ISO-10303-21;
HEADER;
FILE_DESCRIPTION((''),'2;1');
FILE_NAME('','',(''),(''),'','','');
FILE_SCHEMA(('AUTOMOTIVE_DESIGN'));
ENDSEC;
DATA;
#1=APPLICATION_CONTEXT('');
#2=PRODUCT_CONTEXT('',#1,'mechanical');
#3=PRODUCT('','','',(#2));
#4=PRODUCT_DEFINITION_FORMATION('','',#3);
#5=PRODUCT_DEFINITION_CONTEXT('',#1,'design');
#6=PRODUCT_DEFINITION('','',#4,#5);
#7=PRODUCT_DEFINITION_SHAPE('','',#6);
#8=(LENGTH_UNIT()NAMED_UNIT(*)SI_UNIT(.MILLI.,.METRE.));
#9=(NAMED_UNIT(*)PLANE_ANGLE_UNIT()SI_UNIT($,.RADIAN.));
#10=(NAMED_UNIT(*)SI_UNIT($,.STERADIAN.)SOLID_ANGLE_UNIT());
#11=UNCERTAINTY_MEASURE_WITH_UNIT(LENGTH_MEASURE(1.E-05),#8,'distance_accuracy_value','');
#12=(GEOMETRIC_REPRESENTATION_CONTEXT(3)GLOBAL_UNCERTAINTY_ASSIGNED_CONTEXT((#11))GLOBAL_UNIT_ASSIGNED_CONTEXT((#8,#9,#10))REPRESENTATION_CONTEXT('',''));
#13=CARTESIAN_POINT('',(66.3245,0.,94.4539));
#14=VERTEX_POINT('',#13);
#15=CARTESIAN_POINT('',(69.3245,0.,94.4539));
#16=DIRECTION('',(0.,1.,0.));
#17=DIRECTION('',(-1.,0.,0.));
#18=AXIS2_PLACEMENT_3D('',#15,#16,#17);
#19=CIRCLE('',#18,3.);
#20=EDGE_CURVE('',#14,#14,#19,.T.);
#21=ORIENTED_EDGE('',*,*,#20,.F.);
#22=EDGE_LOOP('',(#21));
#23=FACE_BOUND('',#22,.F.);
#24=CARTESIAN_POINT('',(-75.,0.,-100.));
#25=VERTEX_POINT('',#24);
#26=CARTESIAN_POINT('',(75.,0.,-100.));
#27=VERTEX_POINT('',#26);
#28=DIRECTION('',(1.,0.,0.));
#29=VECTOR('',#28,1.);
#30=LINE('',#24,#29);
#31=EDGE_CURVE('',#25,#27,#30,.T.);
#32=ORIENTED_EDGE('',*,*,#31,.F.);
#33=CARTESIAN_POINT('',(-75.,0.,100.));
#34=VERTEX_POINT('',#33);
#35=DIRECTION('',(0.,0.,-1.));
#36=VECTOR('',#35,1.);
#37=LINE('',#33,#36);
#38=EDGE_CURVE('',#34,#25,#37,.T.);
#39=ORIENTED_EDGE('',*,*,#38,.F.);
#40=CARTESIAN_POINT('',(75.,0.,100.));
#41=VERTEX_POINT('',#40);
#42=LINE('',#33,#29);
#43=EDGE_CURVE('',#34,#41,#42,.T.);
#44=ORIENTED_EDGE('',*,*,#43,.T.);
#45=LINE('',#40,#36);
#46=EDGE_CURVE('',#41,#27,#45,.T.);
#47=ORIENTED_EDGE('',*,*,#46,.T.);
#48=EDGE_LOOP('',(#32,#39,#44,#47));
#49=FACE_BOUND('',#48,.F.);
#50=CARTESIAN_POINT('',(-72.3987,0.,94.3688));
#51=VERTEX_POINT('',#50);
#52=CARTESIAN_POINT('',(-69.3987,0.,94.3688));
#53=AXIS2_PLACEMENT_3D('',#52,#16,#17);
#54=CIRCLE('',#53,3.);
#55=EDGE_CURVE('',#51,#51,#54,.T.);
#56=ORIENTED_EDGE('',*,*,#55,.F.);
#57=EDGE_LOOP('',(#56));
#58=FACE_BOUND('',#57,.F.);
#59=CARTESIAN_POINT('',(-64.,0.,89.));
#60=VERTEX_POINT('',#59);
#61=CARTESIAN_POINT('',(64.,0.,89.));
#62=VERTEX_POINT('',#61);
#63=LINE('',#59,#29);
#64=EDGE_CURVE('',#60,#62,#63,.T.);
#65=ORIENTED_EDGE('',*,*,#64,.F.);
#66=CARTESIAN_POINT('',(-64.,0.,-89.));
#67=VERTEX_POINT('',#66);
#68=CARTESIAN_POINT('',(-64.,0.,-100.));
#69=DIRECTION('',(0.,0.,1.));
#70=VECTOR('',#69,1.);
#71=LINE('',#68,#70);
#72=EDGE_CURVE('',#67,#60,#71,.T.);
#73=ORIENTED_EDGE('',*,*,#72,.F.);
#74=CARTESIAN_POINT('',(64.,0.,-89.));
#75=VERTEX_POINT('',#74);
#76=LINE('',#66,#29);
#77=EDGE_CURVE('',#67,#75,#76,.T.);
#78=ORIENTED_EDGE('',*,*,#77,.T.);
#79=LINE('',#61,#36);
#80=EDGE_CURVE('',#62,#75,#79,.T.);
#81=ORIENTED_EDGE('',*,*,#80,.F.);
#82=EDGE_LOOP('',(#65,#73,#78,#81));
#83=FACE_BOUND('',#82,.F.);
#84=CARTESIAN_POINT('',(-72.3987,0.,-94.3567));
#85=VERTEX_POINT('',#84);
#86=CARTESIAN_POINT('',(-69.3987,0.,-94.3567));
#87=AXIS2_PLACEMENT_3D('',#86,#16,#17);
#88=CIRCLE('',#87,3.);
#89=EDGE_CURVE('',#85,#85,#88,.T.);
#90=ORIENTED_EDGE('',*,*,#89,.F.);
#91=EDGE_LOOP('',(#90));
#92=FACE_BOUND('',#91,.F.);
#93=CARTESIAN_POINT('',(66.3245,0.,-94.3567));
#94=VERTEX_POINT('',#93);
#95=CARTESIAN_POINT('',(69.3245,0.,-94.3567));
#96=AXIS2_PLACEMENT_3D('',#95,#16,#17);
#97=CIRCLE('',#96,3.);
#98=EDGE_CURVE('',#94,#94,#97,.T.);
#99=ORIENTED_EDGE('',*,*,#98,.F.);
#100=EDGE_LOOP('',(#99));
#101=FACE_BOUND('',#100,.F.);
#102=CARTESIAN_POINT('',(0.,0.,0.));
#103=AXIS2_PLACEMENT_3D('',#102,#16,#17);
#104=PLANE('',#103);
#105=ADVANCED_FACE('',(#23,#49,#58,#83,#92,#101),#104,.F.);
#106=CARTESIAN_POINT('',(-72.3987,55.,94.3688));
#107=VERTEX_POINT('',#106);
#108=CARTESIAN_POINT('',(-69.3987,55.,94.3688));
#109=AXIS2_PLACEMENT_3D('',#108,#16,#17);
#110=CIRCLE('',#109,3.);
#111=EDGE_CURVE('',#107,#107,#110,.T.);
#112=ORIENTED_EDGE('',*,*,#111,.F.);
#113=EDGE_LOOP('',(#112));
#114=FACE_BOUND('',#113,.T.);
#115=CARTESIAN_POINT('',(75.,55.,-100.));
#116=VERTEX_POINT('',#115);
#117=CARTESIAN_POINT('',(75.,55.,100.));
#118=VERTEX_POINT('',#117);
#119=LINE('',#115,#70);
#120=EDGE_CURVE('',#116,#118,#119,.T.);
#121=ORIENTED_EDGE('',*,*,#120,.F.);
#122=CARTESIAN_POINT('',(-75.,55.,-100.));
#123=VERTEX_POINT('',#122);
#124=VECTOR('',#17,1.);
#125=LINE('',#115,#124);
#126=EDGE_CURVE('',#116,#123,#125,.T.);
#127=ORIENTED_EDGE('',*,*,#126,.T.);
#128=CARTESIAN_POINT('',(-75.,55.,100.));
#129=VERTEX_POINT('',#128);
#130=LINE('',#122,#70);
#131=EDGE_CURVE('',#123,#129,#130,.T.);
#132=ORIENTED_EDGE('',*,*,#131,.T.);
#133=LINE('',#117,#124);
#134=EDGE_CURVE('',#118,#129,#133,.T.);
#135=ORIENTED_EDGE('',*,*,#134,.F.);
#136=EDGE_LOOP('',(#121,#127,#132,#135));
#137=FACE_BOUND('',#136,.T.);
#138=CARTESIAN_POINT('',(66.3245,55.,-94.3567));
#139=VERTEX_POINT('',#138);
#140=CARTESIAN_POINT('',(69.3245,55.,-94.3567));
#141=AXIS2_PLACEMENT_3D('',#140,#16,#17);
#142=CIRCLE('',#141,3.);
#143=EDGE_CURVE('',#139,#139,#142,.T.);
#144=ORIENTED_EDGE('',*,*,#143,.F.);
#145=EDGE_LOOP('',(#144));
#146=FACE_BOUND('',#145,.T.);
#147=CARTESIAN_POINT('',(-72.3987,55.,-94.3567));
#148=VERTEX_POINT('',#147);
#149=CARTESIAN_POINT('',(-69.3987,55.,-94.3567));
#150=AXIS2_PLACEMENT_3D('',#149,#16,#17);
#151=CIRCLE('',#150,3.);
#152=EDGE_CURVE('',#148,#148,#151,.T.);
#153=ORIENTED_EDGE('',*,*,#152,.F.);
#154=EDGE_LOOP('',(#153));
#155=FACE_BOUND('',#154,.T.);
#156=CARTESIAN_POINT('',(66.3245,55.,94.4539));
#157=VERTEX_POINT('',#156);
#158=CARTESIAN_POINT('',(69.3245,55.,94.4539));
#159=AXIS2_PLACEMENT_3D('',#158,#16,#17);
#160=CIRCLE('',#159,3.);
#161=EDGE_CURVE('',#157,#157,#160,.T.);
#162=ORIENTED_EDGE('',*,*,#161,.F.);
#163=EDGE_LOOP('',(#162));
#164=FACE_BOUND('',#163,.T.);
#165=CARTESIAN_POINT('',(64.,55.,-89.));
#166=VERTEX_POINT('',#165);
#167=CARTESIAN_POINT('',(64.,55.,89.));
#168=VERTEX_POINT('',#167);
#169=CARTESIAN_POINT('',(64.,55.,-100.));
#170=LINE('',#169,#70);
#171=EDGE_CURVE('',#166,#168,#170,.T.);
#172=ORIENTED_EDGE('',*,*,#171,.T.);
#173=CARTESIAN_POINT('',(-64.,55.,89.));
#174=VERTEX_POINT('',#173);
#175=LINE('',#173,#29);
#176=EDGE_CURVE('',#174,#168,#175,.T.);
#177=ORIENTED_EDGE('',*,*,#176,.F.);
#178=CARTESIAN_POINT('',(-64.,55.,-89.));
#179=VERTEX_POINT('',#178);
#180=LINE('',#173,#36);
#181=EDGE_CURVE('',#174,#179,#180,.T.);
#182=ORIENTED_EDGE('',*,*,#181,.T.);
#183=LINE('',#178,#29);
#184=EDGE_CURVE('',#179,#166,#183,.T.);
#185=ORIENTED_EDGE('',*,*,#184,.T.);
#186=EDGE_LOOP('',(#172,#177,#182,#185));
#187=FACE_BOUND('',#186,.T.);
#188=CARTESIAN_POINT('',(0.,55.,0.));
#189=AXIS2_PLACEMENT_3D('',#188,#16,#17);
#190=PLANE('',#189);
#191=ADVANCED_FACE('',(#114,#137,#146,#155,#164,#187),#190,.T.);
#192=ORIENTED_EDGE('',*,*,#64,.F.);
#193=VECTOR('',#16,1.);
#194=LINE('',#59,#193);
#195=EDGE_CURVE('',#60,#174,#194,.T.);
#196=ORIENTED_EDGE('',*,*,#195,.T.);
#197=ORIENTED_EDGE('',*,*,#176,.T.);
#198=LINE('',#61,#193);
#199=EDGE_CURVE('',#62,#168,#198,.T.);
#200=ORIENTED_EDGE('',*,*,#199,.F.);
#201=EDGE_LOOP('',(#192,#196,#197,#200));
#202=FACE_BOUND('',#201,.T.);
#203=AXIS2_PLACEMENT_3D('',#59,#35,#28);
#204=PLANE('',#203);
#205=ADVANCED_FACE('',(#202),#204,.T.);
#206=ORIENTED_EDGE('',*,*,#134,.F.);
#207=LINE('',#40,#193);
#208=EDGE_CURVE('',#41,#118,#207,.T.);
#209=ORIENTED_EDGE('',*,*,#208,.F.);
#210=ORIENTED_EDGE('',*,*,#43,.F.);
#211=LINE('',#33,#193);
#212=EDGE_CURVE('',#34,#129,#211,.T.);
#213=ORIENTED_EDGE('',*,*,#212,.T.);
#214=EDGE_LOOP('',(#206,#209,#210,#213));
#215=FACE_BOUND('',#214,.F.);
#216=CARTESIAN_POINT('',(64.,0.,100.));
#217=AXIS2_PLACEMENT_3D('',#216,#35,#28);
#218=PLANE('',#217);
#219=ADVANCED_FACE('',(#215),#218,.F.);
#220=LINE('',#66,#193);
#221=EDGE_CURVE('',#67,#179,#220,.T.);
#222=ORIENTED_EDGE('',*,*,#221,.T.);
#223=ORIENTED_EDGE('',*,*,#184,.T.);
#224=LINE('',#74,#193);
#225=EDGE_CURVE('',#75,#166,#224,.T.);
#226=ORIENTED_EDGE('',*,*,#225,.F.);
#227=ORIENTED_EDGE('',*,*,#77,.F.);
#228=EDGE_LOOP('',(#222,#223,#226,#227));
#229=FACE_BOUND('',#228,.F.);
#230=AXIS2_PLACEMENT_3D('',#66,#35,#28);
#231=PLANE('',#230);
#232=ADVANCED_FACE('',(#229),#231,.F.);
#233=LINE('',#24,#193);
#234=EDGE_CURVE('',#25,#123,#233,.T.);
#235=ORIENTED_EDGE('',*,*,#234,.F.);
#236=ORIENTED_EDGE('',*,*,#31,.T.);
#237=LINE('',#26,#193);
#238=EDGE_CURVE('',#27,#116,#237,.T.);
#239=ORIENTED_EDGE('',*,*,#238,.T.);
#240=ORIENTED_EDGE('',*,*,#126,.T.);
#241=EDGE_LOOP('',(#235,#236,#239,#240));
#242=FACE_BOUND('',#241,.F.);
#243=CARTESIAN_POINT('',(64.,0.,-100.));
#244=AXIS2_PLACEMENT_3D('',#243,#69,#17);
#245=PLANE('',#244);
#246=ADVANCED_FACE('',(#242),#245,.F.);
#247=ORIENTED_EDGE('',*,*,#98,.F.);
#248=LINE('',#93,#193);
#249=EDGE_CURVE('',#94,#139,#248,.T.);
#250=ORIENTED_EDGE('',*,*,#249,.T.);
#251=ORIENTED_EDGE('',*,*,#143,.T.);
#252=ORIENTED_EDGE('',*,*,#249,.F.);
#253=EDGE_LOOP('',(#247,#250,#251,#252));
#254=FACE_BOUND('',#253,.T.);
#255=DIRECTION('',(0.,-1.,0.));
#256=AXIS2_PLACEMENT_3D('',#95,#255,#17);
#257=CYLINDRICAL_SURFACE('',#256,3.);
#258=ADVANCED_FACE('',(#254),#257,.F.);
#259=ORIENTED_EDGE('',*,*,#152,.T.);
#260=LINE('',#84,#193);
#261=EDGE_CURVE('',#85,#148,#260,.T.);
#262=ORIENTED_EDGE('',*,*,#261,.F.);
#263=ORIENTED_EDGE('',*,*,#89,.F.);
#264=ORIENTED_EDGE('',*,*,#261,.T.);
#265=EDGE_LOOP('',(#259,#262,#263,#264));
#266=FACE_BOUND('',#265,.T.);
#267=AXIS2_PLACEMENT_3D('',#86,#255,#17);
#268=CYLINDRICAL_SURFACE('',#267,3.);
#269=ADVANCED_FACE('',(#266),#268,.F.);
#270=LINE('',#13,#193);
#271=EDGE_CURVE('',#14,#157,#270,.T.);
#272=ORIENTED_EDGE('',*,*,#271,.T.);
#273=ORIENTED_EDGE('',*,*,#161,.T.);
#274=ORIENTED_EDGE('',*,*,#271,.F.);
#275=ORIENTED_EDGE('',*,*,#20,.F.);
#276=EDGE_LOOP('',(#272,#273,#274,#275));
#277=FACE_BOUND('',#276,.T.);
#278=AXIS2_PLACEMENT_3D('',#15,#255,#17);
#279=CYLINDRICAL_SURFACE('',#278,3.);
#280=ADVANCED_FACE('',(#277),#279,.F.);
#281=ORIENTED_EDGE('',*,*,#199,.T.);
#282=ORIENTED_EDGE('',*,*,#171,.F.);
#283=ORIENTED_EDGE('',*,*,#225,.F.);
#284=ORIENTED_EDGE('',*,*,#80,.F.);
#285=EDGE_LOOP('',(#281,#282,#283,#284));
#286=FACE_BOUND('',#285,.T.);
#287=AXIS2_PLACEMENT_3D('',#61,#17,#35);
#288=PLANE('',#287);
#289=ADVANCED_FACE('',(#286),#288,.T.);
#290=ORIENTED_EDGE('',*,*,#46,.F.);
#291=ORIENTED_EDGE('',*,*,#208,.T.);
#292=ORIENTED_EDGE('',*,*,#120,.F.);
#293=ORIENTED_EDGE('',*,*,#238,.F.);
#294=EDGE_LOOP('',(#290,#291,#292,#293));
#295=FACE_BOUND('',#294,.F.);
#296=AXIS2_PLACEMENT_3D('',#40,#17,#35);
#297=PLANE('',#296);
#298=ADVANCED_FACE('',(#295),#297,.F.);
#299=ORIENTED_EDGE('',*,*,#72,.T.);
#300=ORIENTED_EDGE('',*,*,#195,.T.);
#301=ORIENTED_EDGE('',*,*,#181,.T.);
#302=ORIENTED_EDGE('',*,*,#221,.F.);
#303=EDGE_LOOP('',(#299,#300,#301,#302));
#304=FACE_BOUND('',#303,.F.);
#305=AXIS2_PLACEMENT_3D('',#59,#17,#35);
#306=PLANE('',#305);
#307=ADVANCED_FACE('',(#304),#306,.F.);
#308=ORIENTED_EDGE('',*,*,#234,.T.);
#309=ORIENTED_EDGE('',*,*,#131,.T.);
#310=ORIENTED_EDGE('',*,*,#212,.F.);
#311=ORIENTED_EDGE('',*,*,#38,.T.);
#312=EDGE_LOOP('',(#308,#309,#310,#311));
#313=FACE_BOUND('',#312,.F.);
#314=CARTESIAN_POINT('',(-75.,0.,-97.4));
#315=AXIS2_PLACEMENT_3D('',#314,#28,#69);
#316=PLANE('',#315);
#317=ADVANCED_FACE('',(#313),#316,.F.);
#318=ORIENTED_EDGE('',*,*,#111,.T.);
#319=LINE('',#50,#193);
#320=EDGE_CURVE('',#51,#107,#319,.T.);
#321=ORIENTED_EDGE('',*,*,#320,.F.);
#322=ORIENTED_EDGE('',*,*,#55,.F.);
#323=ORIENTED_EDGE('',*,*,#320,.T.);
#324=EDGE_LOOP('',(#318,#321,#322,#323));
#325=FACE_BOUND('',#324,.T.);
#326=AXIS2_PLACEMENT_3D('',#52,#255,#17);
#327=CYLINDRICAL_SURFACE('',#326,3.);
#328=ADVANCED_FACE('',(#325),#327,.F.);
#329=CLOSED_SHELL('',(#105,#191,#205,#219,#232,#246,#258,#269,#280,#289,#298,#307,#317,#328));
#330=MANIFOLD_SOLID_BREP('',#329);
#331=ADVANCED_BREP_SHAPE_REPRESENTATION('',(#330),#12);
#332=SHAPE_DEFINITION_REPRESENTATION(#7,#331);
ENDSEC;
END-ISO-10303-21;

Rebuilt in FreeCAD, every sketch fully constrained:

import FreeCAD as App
import Part
import Sketcher

doc = App.newDocument("Part")
params = doc.addObject("Spreadsheet::Sheet", "Params")
for row, (alias, value) in enumerate([
    ("sketch1_height", "11 mm"),
    ("sketch1_width", "128 mm"),
    ("pad1_length", "55 mm"),
    ("sketch2_diameter", "6 mm"),
    ("sketch2_width", "11 mm"),
    ("sketch2_height", "200 mm"),
    ("pad2_length", "55 mm"),
    ("sketch3_diameter", "6 mm"),
    ("sketch3_width", "11 mm"),
    ("sketch3_height", "200 mm"),
    ("pad3_length", "55 mm"),
    ("sketch4_height", "11 mm"),
    ("sketch4_width", "128 mm"),
    ("pad4_length", "55 mm"),
], start=1):
    params.set(f"A{row}", alias)
    params.set(f"B{row}", "=" + value)
    params.setAlias(f"B{row}", alias)

body = doc.addObject("PartDesign::Body", "Body")

# Sketch on XZ plane
sketch1 = body.newObject("Sketcher::SketchObject", "Sketch")
sketch1.AttachmentSupport = (doc.getObject("XZ_Plane"), [""])
sketch1.MapMode = "FlatFace"
sketch1.addGeometry([
    Part.LineSegment(App.Vector(-64, 100, 0), App.Vector(64, 100, 0)),
    Part.LineSegment(App.Vector(64, 100, 0), App.Vector(64, 89, 0)),
    Part.LineSegment(App.Vector(64, 89, 0), App.Vector(-64, 89, 0)),
    Part.LineSegment(App.Vector(-64, 89, 0), App.Vector(-64, 100, 0)),
], False)
sketch1.addConstraint([
    Sketcher.Constraint("Coincident", 0, 2, 1, 1),
    Sketcher.Constraint("Coincident", 1, 2, 2, 1),
    Sketcher.Constraint("Coincident", 2, 2, 3, 1),
    Sketcher.Constraint("Coincident", 3, 2, 0, 1),
    Sketcher.Constraint("Horizontal", 0),
    Sketcher.Constraint("Vertical", 1),
    Sketcher.Constraint("Horizontal", 2),
    Sketcher.Constraint("Vertical", 3),
    Sketcher.Constraint("DistanceY", 1, 2, 1, 1, 11.0),
    Sketcher.Constraint("DistanceX", 0, 1, 0, 2, 128.0),
    Sketcher.Constraint("DistanceX", -1, 1, 0, 2, 64.0),
    Sketcher.Constraint("DistanceY", -1, 1, 0, 2, 100.0),
])
sketch1.setExpression("Constraints[8]", "Params.sketch1_height")
sketch1.setExpression("Constraints[9]", "Params.sketch1_width")
pad1 = body.newObject("PartDesign::Pad", "Pad")
pad1.Profile = sketch1
pad1.setExpression("Length", "Params.pad1_length")
pad1.Reversed = True

# Sketch on XZ plane
sketch2 = body.newObject("Sketcher::SketchObject", "Sketch001")
sketch2.AttachmentSupport = (doc.getObject("XZ_Plane"), [""])
sketch2.MapMode = "FlatFace"
sketch2.addGeometry([
    Part.LineSegment(App.Vector(-64, 100, 0), App.Vector(-64, -100, 0)),  # 0
    Part.LineSegment(App.Vector(-64, -100, 0), App.Vector(-75, -100, 0)),  # 1
    Part.LineSegment(App.Vector(-75, -100, 0), App.Vector(-75, 100, 0)),  # 2
    Part.LineSegment(App.Vector(-75, 100, 0), App.Vector(-64, 100, 0)),  # 3
    Part.Circle(App.Vector(-69.4, -94.4, 0), App.Vector(0, 0, 1), 3),  # 4
    Part.Circle(App.Vector(-69.4, 94.4, 0), App.Vector(0, 0, 1), 3),  # 5
], False)
sketch2.addConstraint([
    Sketcher.Constraint("Coincident", 0, 2, 1, 1),
    Sketcher.Constraint("Coincident", 1, 2, 2, 1),
    Sketcher.Constraint("Coincident", 2, 2, 3, 1),
    Sketcher.Constraint("Coincident", 3, 2, 0, 1),
    Sketcher.Constraint("Vertical", 0),
    Sketcher.Constraint("Horizontal", 1),
    Sketcher.Constraint("Vertical", 2),
    Sketcher.Constraint("Horizontal", 3),
    Sketcher.Constraint("Equal", 4, 5),
    Sketcher.Constraint("Vertical", 4, 3, 5, 3),
    Sketcher.Constraint("Diameter", 4, 6.0),
    Sketcher.Constraint("DistanceX", 1, 2, 1, 1, 11.0),
    Sketcher.Constraint("DistanceY", 0, 2, 0, 1, 200.0),
    Sketcher.Constraint("DistanceX", 0, 2, -1, 1, 64.0),
    Sketcher.Constraint("DistanceY", 0, 2, -1, 1, 100.0),
    Sketcher.Constraint("DistanceX", 4, 3, -1, 1, 69.3987),
    Sketcher.Constraint("DistanceY", 4, 3, -1, 1, 94.3567),
    Sketcher.Constraint("DistanceY", -1, 1, 5, 3, 94.3688),
])
sketch2.setExpression("Constraints[10]", "Params.sketch2_diameter")
sketch2.setExpression("Constraints[11]", "Params.sketch2_width")
sketch2.setExpression("Constraints[12]", "Params.sketch2_height")
pad2 = body.newObject("PartDesign::Pad", "Pad001")
pad2.Profile = sketch2
pad2.setExpression("Length", "Params.pad2_length")
pad2.Reversed = True

# Sketch on XZ plane
sketch3 = body.newObject("Sketcher::SketchObject", "Sketch002")
sketch3.AttachmentSupport = (doc.getObject("XZ_Plane"), [""])
sketch3.MapMode = "FlatFace"
sketch3.addGeometry([
    Part.LineSegment(App.Vector(75, 100, 0), App.Vector(75, -100, 0)),  # 0
    Part.LineSegment(App.Vector(75, -100, 0), App.Vector(64, -100, 0)),  # 1
    Part.LineSegment(App.Vector(64, -100, 0), App.Vector(64, 100, 0)),  # 2
    Part.LineSegment(App.Vector(64, 100, 0), App.Vector(75, 100, 0)),  # 3
    Part.Circle(App.Vector(69.3, -94.4, 0), App.Vector(0, 0, 1), 3),  # 4
    Part.Circle(App.Vector(69.3, 94.5, 0), App.Vector(0, 0, 1), 3),  # 5
], False)
sketch3.addConstraint([
    Sketcher.Constraint("Coincident", 0, 2, 1, 1),
    Sketcher.Constraint("Coincident", 1, 2, 2, 1),
    Sketcher.Constraint("Coincident", 2, 2, 3, 1),
    Sketcher.Constraint("Coincident", 3, 2, 0, 1),
    Sketcher.Constraint("Vertical", 0),
    Sketcher.Constraint("Horizontal", 1),
    Sketcher.Constraint("Vertical", 2),
    Sketcher.Constraint("Horizontal", 3),
    Sketcher.Constraint("Equal", 4, 5),
    Sketcher.Constraint("Vertical", 4, 3, 5, 3),
    Sketcher.Constraint("Diameter", 4, 6.0),
    Sketcher.Constraint("DistanceX", 1, 2, 1, 1, 11.0),
    Sketcher.Constraint("DistanceY", 0, 2, 0, 1, 200.0),
    Sketcher.Constraint("DistanceX", -1, 1, 0, 2, 75.0),
    Sketcher.Constraint("DistanceY", 0, 2, -1, 1, 100.0),
    Sketcher.Constraint("DistanceY", -1, 1, 5, 3, 94.454),
    Sketcher.Constraint("DistanceX", -1, 1, 4, 3, 69.3245),
    Sketcher.Constraint("DistanceY", 4, 3, -1, 1, 94.3567),
])
sketch3.setExpression("Constraints[10]", "Params.sketch3_diameter")
sketch3.setExpression("Constraints[11]", "Params.sketch3_width")
sketch3.setExpression("Constraints[12]", "Params.sketch3_height")
pad3 = body.newObject("PartDesign::Pad", "Pad002")
pad3.Profile = sketch3
pad3.setExpression("Length", "Params.pad3_length")
pad3.Reversed = True

# Sketch on XZ plane
sketch4 = body.newObject("Sketcher::SketchObject", "Sketch003")
sketch4.AttachmentSupport = (doc.getObject("XZ_Plane"), [""])
sketch4.MapMode = "FlatFace"
sketch4.addGeometry([
    Part.LineSegment(App.Vector(64, -89, 0), App.Vector(64, -100, 0)),
    Part.LineSegment(App.Vector(64, -100, 0), App.Vector(-64, -100, 0)),
    Part.LineSegment(App.Vector(-64, -100, 0), App.Vector(-64, -89, 0)),
    Part.LineSegment(App.Vector(-64, -89, 0), App.Vector(64, -89, 0)),
], False)
sketch4.addConstraint([
    Sketcher.Constraint("Coincident", 0, 2, 1, 1),
    Sketcher.Constraint("Coincident", 1, 2, 2, 1),
    Sketcher.Constraint("Coincident", 2, 2, 3, 1),
    Sketcher.Constraint("Coincident", 3, 2, 0, 1),
    Sketcher.Constraint("Vertical", 0),
    Sketcher.Constraint("Horizontal", 1),
    Sketcher.Constraint("Vertical", 2),
    Sketcher.Constraint("Horizontal", 3),
    Sketcher.Constraint("DistanceY", 0, 2, 0, 1, 11.0),
    Sketcher.Constraint("DistanceX", 1, 2, 1, 1, 128.0),
    Sketcher.Constraint("DistanceX", -1, 1, 0, 2, 64.0),
    Sketcher.Constraint("DistanceY", 0, 2, -1, 1, 100.0),
])
sketch4.setExpression("Constraints[8]", "Params.sketch4_height")
sketch4.setExpression("Constraints[9]", "Params.sketch4_width")
pad4 = body.newObject("PartDesign::Pad", "Pad003")
pad4.Profile = sketch4
pad4.setExpression("Length", "Params.pad4_length")
pad4.Reversed = True

doc.recompute()
